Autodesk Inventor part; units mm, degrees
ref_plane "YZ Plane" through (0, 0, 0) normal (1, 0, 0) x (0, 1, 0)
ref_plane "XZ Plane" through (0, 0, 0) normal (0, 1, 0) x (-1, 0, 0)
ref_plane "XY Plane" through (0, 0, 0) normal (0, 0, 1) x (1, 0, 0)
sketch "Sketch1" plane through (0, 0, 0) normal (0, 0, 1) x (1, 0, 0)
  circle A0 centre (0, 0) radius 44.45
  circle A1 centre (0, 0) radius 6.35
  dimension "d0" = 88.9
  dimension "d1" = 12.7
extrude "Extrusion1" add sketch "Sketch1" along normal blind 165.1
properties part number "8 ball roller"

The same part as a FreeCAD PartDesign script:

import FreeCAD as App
import Part
import Sketcher
from FreeCAD import Vector
Q = App.Units.Quantity

doc = App.newDocument("Part")
body = doc.addObject("PartDesign::Body", "Body")

sketch1 = doc.addObject("Sketcher::SketchObject", "Sketch")
body.addObject(sketch1)
sketch1.AttachmentSupport = (doc.XY_Plane, [""])
sketch1.MapMode = "FlatFace"
sketch1.addGeometry(Part.Circle(Vector(0, 0, 0), Vector(0, 0, 1), 44), False)
sketch1.addGeometry(Part.Circle(Vector(0, 0, 0), Vector(0, 0, 1), 6), False)
sketch1.addConstraint(Sketcher.Constraint("Coincident", 0, 3, -1, 1))
sketch1.addConstraint(Sketcher.Constraint("Coincident", 1, 3, -1, 1))
sketch1.addConstraint(Sketcher.Constraint("Diameter", 0, Q("3.5 in")))
sketch1.addConstraint(Sketcher.Constraint("Diameter", 1, Q("0.5 in")))
pad1 = doc.addObject("PartDesign::Pad", "Pad")
body.addObject(pad1)
pad1.Profile = sketch1
pad1.Length = Q("6.5 in")

doc.recompute()
